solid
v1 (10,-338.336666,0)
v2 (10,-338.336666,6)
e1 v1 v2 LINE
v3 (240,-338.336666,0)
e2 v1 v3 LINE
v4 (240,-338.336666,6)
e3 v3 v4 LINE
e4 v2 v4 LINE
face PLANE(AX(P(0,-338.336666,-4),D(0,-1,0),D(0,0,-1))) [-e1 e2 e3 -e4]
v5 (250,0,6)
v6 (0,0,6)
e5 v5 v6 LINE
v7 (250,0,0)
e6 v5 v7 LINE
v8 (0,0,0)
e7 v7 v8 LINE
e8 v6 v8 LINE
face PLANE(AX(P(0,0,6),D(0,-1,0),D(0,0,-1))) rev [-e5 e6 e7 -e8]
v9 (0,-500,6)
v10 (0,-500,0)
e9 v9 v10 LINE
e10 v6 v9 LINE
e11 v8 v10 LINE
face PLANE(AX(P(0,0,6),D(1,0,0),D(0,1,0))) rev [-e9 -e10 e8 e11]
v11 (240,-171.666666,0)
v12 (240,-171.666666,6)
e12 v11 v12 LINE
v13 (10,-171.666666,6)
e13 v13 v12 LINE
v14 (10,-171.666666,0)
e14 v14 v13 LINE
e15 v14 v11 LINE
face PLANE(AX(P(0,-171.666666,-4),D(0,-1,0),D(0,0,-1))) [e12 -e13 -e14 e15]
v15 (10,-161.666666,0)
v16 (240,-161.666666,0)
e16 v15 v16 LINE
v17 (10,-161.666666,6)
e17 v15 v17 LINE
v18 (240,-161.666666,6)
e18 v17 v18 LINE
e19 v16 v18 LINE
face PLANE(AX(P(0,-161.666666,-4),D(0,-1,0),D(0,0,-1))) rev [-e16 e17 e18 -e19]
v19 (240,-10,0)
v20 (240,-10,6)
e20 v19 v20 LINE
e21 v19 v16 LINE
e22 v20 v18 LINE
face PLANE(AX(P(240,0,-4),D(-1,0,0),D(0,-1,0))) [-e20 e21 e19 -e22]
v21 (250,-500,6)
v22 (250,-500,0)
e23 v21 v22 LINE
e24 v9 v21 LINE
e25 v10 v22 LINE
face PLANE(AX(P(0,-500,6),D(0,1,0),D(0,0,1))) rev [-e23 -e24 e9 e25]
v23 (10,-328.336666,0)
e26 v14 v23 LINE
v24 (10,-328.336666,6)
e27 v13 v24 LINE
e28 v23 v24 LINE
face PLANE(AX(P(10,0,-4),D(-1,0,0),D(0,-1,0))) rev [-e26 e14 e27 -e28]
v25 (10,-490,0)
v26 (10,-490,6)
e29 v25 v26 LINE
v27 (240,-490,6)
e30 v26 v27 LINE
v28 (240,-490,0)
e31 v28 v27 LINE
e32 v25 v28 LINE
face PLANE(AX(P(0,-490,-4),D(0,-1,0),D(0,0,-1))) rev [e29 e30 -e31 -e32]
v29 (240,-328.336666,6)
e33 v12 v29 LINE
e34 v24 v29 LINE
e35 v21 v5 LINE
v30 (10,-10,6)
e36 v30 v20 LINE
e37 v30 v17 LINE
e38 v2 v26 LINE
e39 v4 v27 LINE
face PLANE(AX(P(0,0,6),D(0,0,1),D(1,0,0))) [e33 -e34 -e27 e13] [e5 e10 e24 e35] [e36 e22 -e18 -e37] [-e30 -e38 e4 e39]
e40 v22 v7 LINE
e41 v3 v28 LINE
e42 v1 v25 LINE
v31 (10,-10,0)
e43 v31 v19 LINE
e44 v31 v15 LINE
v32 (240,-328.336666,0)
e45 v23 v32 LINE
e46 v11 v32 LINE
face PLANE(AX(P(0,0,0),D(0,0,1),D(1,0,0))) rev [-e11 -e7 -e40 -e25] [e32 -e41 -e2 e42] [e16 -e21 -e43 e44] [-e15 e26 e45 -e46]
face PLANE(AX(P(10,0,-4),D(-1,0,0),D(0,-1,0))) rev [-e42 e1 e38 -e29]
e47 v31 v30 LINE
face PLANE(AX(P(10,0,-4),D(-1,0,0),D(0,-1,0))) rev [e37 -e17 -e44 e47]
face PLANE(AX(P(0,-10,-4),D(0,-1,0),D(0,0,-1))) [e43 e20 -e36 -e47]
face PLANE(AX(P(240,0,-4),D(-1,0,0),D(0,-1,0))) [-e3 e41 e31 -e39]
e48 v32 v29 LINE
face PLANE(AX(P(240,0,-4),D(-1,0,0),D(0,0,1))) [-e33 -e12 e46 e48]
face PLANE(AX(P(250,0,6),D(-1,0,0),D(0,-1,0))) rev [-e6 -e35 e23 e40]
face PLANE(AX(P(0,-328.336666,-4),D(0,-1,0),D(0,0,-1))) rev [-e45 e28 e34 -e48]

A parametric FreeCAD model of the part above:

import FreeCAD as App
import Part
import Sketcher

V = App.Vector
Q = App.Units.Quantity


def add_polygon(sketch, points):
    """Adds a closed chain of lines whose ends are joined by coincident constraints."""
    first, n = sketch.GeometryCount, len(points)
    for a, b in zip(points, points[1:] + points[:1]):
        sketch.addGeometry(Part.LineSegment(App.Vector(*a, 0), App.Vector(*b, 0)), False)
    for i in range(n):
        sketch.addConstraint(Sketcher.Constraint("Coincident", first + i, 2, first + (i + 1) % n, 1))

doc = App.newDocument("Part")
body = doc.addObject("PartDesign::Body", "Body")

# Sketch on XY plane
sketch1 = doc.addObject("Sketcher::SketchObject", "Sketch")
body.addObject(sketch1)
sketch1.AttachmentSupport = (doc.XY_Plane, [""])
sketch1.MapMode = "FlatFace"
add_polygon(sketch1, [(0, 0), (0, -500), (250, -500), (250, 0)])  # lines 0-3
sketch1.addConstraint([
    Sketcher.Constraint("Vertical", 0),
    Sketcher.Constraint("Horizontal", 1),
    Sketcher.Constraint("Vertical", 2),
    Sketcher.Constraint("Horizontal", 3),
    Sketcher.Constraint("Coincident", 3, 2, -1, 1),
    Sketcher.Constraint("DistanceX", 1, 1, 1, 2, Q("250 mm")),
    Sketcher.Constraint("DistanceY", 0, 2, 0, 1, Q("500 mm")),
])
pad1 = doc.addObject("PartDesign::Pad", "Pad")
body.addObject(pad1)
pad1.Profile = sketch1
pad1.Length = 6

# Sketch on XY plane
sketch2 = doc.addObject("Sketcher::SketchObject", "Sketch001")
body.addObject(sketch2)
sketch2.AttachmentSupport = (doc.XY_Plane, [""])
sketch2.MapMode = "FlatFace"
sketch2.AttachmentOffset = App.Placement(V(0, 0, 6), App.Rotation())
add_polygon(sketch2, [(10, -172), (10, -328), (240, -328), (240, -172)])  # lines 0-3
add_polygon(sketch2, [(10, -10), (10, -162), (240, -162), (240, -10)])  # lines 4-7
add_polygon(sketch2, [(10, -338), (10, -490), (240, -490), (240, -338)])  # lines 8-11
sketch2.addConstraint([
    Sketcher.Constraint("Vertical", 0),
    Sketcher.Constraint("Horizontal", 1),
    Sketcher.Constraint("Vertical", 2),
    Sketcher.Constraint("Horizontal", 3),
    Sketcher.Constraint("Vertical", 4),
    Sketcher.Constraint("Horizontal", 5),
    Sketcher.Constraint("Vertical", 6),
    Sketcher.Constraint("Horizontal", 7),
    Sketcher.Constraint("Vertical", 8),
    Sketcher.Constraint("Horizontal", 9),
    Sketcher.Constraint("Vertical", 10),
    Sketcher.Constraint("Horizontal", 11),
    Sketcher.Constraint("Vertical", 3, 2, 4, 2),
    Sketcher.Constraint("Vertical", 2, 2, 5, 2),
    Sketcher.Constraint("Vertical", 7, 2, 8, 2),
    Sketcher.Constraint("Vertical", 6, 2, 9, 2),
    Sketcher.Constraint("DistanceX", 1, 1, 1, 2, Q("230 mm")),
    Sketcher.Constraint("DistanceX", -1, 1, 0, 2, Q("10 mm")),
    Sketcher.Constraint("DistanceY", 6, 2, -1, 1, Q("10 mm")),
    Sketcher.Constraint("DistanceY", 8, 2, -1, 1, Q("490 mm")),
    Sketcher.Constraint("DistanceY", 3, 2, 4, 2, Q("10 mm")),
    Sketcher.Constraint("DistanceY", 10, 2, 1, 2, Q("10 mm")),
    Sketcher.Constraint("DistanceY", 0, 2, 0, 1, Q("156.67 mm")),
    Sketcher.Constraint("DistanceY", 4, 2, 4, 1, Q("151.666666 mm")),
])
pocket1 = doc.addObject("PartDesign::Pocket", "Pocket")
body.addObject(pocket1)
pocket1.Profile = sketch2
pocket1.Length = 10

doc.recompute()
